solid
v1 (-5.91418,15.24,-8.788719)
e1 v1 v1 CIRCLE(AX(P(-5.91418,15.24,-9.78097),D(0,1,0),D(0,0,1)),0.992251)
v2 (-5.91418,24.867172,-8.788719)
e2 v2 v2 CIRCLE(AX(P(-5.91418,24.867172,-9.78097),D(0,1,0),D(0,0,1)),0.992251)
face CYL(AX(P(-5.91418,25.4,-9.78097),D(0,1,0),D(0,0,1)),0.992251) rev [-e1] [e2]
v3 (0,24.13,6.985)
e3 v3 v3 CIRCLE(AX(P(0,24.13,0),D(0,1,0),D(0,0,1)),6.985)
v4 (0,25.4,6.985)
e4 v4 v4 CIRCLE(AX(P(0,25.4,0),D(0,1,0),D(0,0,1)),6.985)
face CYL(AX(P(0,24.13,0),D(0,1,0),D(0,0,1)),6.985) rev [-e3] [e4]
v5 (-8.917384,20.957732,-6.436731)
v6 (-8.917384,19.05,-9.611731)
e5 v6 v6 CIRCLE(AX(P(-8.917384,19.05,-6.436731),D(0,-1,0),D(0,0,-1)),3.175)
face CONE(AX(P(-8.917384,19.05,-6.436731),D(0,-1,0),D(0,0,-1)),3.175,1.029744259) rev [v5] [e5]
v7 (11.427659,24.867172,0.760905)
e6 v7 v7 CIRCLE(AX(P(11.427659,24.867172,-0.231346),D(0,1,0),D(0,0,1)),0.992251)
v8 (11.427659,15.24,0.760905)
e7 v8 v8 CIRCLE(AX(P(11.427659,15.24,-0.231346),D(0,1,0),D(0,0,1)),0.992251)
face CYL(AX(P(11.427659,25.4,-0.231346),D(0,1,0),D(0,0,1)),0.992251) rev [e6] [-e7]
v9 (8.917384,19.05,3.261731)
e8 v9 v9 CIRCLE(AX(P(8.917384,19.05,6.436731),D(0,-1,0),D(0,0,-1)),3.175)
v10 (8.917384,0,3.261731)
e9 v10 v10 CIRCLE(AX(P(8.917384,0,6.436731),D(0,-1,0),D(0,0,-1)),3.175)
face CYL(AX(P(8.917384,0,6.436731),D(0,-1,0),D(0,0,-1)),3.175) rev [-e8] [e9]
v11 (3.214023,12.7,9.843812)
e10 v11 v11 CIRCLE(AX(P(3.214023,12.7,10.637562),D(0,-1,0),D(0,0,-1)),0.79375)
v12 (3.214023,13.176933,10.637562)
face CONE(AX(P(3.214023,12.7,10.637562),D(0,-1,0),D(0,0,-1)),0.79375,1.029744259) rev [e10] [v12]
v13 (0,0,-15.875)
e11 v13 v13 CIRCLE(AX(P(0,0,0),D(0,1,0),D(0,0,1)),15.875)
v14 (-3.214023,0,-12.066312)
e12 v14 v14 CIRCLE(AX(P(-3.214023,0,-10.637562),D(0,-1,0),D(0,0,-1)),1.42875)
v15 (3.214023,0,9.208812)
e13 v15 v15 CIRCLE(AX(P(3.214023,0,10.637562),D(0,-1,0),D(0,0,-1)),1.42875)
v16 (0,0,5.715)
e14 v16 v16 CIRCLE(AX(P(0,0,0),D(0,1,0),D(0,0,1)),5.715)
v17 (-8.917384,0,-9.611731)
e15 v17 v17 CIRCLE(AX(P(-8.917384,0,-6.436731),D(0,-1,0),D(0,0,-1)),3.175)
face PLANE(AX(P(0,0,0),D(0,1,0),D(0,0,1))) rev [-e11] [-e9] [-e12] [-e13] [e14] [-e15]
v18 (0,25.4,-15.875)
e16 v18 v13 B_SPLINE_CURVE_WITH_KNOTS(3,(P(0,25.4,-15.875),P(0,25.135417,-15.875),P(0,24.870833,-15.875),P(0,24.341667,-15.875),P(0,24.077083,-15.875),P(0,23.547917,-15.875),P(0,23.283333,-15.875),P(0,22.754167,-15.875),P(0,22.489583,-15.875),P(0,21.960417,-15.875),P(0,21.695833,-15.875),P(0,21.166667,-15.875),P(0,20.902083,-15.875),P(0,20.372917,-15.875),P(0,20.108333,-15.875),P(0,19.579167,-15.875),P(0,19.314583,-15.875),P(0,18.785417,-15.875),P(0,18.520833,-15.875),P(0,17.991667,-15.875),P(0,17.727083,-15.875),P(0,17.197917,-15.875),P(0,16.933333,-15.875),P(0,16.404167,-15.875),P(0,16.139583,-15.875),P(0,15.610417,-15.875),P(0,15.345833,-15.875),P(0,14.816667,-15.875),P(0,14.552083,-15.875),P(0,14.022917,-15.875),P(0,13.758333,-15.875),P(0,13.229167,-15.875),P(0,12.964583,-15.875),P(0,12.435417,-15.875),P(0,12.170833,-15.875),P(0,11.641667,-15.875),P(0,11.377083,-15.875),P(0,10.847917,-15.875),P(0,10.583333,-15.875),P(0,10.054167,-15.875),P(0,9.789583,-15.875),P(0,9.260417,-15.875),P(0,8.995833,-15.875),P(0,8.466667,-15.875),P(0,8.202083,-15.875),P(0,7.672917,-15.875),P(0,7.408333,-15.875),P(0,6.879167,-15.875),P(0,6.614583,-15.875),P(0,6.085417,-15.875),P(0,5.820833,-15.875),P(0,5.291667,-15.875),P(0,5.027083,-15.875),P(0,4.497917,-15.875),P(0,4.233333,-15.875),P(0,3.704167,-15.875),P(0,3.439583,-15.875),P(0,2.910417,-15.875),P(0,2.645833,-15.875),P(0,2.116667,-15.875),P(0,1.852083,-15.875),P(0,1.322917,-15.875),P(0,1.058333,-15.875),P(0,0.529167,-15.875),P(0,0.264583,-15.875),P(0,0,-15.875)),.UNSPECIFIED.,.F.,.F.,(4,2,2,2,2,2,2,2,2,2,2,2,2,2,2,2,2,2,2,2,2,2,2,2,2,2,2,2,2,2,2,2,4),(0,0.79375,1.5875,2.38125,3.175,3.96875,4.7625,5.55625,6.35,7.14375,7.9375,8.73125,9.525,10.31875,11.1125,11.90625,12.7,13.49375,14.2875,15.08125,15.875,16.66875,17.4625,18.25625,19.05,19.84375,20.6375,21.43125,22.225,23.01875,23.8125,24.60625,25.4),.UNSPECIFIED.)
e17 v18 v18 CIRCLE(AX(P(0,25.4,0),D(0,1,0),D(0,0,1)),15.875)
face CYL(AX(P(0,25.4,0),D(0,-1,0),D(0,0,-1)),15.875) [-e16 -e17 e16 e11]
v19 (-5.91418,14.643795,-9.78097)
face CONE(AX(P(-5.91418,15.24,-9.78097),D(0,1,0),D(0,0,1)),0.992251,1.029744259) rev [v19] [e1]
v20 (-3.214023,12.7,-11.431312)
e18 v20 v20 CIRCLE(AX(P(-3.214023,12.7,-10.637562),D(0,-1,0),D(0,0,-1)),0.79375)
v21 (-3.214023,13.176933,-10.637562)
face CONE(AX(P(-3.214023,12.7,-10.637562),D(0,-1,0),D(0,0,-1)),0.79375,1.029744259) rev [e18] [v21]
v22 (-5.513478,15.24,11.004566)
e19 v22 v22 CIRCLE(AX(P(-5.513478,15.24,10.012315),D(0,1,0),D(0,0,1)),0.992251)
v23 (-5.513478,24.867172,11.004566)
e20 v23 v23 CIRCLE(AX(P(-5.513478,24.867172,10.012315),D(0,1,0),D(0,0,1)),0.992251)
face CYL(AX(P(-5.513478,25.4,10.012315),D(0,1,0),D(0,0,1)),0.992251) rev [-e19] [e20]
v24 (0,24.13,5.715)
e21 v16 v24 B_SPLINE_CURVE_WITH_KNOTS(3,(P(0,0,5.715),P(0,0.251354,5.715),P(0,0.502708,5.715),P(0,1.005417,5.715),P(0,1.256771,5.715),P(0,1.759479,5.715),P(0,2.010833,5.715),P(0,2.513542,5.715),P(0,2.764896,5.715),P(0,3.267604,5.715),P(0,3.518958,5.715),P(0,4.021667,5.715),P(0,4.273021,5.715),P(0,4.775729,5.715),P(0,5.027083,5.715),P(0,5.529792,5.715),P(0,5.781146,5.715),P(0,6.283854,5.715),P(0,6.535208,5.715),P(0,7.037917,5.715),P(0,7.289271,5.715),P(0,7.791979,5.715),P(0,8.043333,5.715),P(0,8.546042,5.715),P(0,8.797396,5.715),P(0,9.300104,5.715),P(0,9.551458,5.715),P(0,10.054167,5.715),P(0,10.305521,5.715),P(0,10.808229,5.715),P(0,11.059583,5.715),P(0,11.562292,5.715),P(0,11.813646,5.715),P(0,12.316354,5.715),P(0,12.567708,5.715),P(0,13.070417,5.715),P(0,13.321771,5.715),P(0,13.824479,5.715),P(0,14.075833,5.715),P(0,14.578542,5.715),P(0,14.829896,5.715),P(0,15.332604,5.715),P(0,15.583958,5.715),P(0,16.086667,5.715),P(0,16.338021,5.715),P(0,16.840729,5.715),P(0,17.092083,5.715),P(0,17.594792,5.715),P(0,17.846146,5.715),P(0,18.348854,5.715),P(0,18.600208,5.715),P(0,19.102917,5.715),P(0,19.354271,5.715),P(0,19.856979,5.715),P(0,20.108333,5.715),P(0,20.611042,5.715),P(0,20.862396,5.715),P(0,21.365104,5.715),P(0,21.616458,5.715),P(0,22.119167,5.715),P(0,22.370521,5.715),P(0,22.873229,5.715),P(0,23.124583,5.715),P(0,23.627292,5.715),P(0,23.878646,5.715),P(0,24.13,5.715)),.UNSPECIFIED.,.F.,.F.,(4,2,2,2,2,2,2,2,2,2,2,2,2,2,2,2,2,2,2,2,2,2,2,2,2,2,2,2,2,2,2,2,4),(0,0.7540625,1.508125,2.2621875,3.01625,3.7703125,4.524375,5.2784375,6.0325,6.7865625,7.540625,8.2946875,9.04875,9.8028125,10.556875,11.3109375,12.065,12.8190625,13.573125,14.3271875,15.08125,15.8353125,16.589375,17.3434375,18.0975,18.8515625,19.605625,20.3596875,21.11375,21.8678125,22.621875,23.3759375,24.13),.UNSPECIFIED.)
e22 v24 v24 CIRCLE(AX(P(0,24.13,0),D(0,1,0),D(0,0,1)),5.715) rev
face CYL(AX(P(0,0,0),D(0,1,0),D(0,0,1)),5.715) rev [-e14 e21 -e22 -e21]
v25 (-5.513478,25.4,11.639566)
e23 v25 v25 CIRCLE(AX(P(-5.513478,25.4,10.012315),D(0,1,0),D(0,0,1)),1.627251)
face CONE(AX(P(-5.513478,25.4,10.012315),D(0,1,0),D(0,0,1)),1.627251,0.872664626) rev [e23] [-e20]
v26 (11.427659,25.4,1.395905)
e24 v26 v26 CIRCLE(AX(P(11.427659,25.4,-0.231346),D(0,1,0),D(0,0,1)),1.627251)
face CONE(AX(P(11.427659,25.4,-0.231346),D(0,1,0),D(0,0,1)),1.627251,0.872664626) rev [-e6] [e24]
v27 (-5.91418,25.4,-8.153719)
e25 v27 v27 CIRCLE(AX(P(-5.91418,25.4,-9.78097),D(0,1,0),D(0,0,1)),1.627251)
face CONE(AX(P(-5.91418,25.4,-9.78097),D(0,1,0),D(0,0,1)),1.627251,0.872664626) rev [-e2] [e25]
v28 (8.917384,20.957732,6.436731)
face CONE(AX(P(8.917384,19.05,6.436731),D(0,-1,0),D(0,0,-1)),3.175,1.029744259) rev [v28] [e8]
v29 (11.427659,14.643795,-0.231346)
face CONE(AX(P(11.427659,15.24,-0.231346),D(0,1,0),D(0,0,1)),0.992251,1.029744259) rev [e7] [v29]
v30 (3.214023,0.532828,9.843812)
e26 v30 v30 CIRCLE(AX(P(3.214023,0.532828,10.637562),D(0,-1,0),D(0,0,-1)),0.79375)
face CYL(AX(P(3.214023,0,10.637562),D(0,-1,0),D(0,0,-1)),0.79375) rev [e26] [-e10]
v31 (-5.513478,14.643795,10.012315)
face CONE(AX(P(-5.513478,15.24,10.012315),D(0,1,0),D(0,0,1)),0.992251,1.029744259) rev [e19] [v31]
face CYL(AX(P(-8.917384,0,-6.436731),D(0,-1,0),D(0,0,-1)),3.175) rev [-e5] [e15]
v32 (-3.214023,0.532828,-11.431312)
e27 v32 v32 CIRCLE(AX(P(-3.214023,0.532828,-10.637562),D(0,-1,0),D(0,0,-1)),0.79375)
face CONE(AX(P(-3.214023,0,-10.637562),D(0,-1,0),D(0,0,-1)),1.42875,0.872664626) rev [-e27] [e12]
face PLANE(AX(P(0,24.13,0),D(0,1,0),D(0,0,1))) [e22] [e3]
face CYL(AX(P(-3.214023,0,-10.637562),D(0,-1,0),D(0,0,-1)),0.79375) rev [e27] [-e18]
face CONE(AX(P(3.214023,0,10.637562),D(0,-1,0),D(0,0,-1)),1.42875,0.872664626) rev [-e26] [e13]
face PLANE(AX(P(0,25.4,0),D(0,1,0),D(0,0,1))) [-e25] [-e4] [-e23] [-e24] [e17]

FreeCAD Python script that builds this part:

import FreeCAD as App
import Part
import Sketcher
from FreeCAD import Vector
Q = App.Units.Quantity

doc = App.newDocument("Part")
body = doc.addObject("PartDesign::Body", "Body")

# Sketch on XZ plane
sketch1 = doc.addObject("Sketcher::SketchObject", "Sketch")
body.addObject(sketch1)
sketch1.AttachmentSupport = (doc.XZ_Plane, [""])
sketch1.MapMode = "FlatFace"
sketch1.addGeometry(Part.Circle(Vector(0, 0, 0), Vector(0, 0, 1), 16), False)
sketch1.addConstraint([
    Sketcher.Constraint("Coincident", 0, 3, -1, 1),
    Sketcher.Constraint("Diameter", 0, Q("1.25 in")),
])
pad1 = doc.addObject("PartDesign::Pad", "Pad")
body.addObject(pad1)
pad1.Profile = sketch1
pad1.Length = Q("1 in")
pad1.Reversed = True

# Sketch on XZ plane
sketch2 = doc.addObject("Sketcher::SketchObject", "Sketch001")
body.addObject(sketch2)
sketch2.AttachmentSupport = (doc.XZ_Plane, [""])
sketch2.MapMode = "FlatFace"
sketch2.AttachmentOffset = App.Placement(Vector(0, 0, -1 * 25.4), App.Rotation())
sketch2.addGeometry(Part.Circle(Vector(0, 0, 0), Vector(0, 0, 1), 6), False)
sketch2.addConstraint([
    Sketcher.Constraint("Coincident", 0, 3, -1, 1),
    Sketcher.Constraint("Diameter", 0, Q("0.45 in")),
])
pocket1 = doc.addObject("PartDesign::Pocket", "Pocket")
body.addObject(pocket1)
pocket1.Profile = sketch2
pocket1.Type = "ThroughAll"
pocket1.Reversed = True

# Sketch on XZ plane
sketch3 = doc.addObject("Sketcher::SketchObject", "Sketch002")
body.addObject(sketch3)
sketch3.AttachmentSupport = (doc.XZ_Plane, [""])
sketch3.MapMode = "FlatFace"
sketch3.AttachmentOffset = App.Placement(Vector(0, 0, -1 * 25.4), App.Rotation())
sketch3.addGeometry(Part.Circle(Vector(0, 0, 0), Vector(0, 0, 1), 7), False)
sketch3.addConstraint([
    Sketcher.Constraint("Coincident", 0, 3, -1, 1),
    Sketcher.Constraint("Diameter", 0, Q("0.55 in")),
])
pocket2 = doc.addObject("PartDesign::Pocket", "Pocket001")
body.addObject(pocket2)
pocket2.Profile = sketch3
pocket2.Length = Q("0.05 in")
pocket2.Reversed = True

# Sketch on YZ plane
sketch4 = doc.addObject("Sketcher::SketchObject", "Sketch003")
body.addObject(sketch4)
sketch4.AttachmentSupport = (doc.YZ_Plane, [""])
sketch4.MapMode = "FlatFace"
sketch4.AttachmentOffset = App.Placement(Vector(0, 0, 8.917384), App.Rotation())
sketch4.addGeometry([
    Part.LineSegment(Vector(21, 6.4, 0), Vector(0, 6.4, 0)),
    Part.LineSegment(Vector(0, 6.4, 0), Vector(0, 3.3, 0)),
    Part.LineSegment(Vector(0, 3.3, 0), Vector(19.1, 3.3, 0)),
    Part.LineSegment(Vector(19.1, 3.3, 0), Vector(21, 6.4, 0)),
], False)
sketch4.addGeometry(Part.LineSegment(Vector(0, 6.4, 0), Vector(21, 6.4, 0)), True)  # axis
sketch4.addConstraint([
    Sketcher.Constraint("Coincident", 0, 2, 1, 1),
    Sketcher.Constraint("Coincident", 1, 2, 2, 1),
    Sketcher.Constraint("Coincident", 2, 2, 3, 1),
    Sketcher.Constraint("Coincident", 3, 2, 0, 1),
    Sketcher.Constraint("Horizontal", 0),
    Sketcher.Constraint("Vertical", 1),
    Sketcher.Constraint("Horizontal", 2),
    Sketcher.Constraint("Horizontal", 4),
    Sketcher.Constraint("Coincident", 4, 1, 0, 2),
    Sketcher.Constraint("PointOnObject", 0, 2, -2),
    Sketcher.Constraint("Equal", 0, 4),
    Sketcher.Constraint("Angle", 3, Q("59 deg")),
    Sketcher.Constraint("DistanceX", 2, 1, 2, 2, Q("0.75 in")),
    Sketcher.Constraint("DistanceY", 1, 2, 1, 1, Q("0.125 in")),
    Sketcher.Constraint("DistanceY", -1, 1, 0, 2, 6.436731),
])
groove = doc.addObject("PartDesign::Groove", "Groove")
body.addObject(groove)
groove.Profile = sketch4
groove.ReferenceAxis = (sketch4, ["Axis0"])
groove.Angle = 360
doc.recompute()

polarpattern = doc.addObject("PartDesign::PolarPattern", "PolarPattern")
body.addObject(polarpattern)
polarpattern.Originals = [groove]
polarpattern.Axis = (doc.Y_Axis, [""])
polarpattern.Angle = 360
polarpattern.Occurrences = 2
body.Tip = polarpattern

# Sketch on YZ plane
sketch5 = doc.addObject("Sketcher::SketchObject", "Sketch004")
body.addObject(sketch5)
sketch5.AttachmentSupport = (doc.YZ_Plane, [""])
sketch5.MapMode = "FlatFace"
sketch5.AttachmentOffset = App.Placement(Vector(0, 0, -5.91418), App.Rotation())
sketch5.addGeometry([
    Part.LineSegment(Vector(14.6, -9.8, 0), Vector(25.4, -9.8, 0)),  # 0
    Part.LineSegment(Vector(25.4, -9.8, 0), Vector(25.4, -8.2, 0)),  # 1
    Part.LineSegment(Vector(25.4, -8.2, 0), Vector(24.9, -8.8, 0)),  # 2
    Part.LineSegment(Vector(24.9, -8.8, 0), Vector(15.2, -8.8, 0)),  # 3
    Part.LineSegment(Vector(15.2, -8.8, 0), Vector(14.6, -9.8, 0)),  # 4
], False)
sketch5.addGeometry(Part.LineSegment(Vector(25.4, -9.8, 0), Vector(14.6, -9.8, 0)), True)  # axis
sketch5.addConstraint([
    Sketcher.Constraint("Coincident", 0, 2, 1, 1),
    Sketcher.Constraint("Coincident", 1, 2, 2, 1),
    Sketcher.Constraint("Coincident", 2, 2, 3, 1),
    Sketcher.Constraint("Coincident", 3, 2, 4, 1),
    Sketcher.Constraint("Coincident", 4, 2, 0, 1),
    Sketcher.Constraint("Horizontal", 0),
    Sketcher.Constraint("Vertical", 1),
    Sketcher.Constraint("Horizontal", 3),
    Sketcher.Constraint("Horizontal", 5),
    Sketcher.Constraint("Coincident", 5, 1, 0, 2),
    Sketcher.Constraint("Equal", 0, 5),
    Sketcher.Constraint("DistanceX", -1, 1, 0, 2, Q("1 in")),
    Sketcher.Constraint("Angle", 2, Q("-130 deg")),
    Sketcher.Constraint("Angle", 4, Q("-121 deg")),
    Sketcher.Constraint("DistanceX", -1, 1, 3, 2, Q("0.6 in")),
    Sketcher.Constraint("DistanceY", 2, 2, 1, 2, Q("0.025 in")),
    Sketcher.Constraint("DistanceY", 1, 1, 1, 2, 1.627251),
    Sketcher.Constraint("DistanceY", 0, 2, -1, 1, 9.78097),
])
groove2 = doc.addObject("PartDesign::Groove", "Groove001")
body.addObject(groove2)
groove2.Profile = sketch5
groove2.ReferenceAxis = (sketch5, ["Axis0"])
groove2.Angle = 360
doc.recompute()

polarpattern2 = doc.addObject("PartDesign::PolarPattern", "PolarPattern001")
body.addObject(polarpattern2)
polarpattern2.Originals = [groove2]
polarpattern2.Axis = (doc.Y_Axis, [""])
polarpattern2.Angle = 360
polarpattern2.Occurrences = 3
body.Tip = polarpattern2

# Sketch on YZ plane
sketch6 = doc.addObject("Sketcher::SketchObject", "Sketch005")
body.addObject(sketch6)
sketch6.AttachmentSupport = (doc.YZ_Plane, [""])
sketch6.MapMode = "FlatFace"
sketch6.AttachmentOffset = App.Placement(Vector(0, 0, -3.214023), App.Rotation())
sketch6.addGeometry([
    Part.LineSegment(Vector(13.2, -10.6, 0), Vector(0, -10.6, 0)),  # 0
    Part.LineSegment(Vector(0, -10.6, 0), Vector(0, -12.1, 0)),  # 1
    Part.LineSegment(Vector(0, -12.1, 0), Vector(0.5, -11.4, 0)),  # 2
    Part.LineSegment(Vector(0.5, -11.4, 0), Vector(12.7, -11.4, 0)),  # 3
    Part.LineSegment(Vector(12.7, -11.4, 0), Vector(13.2, -10.6, 0)),  # 4
], False)
sketch6.addGeometry(Part.LineSegment(Vector(0, -10.6, 0), Vector(13.2, -10.6, 0)), True)  # axis
sketch6.addConstraint([
    Sketcher.Constraint("Coincident", 0, 2, 1, 1),
    Sketcher.Constraint("Coincident", 1, 2, 2, 1),
    Sketcher.Constraint("Coincident", 2, 2, 3, 1),
    Sketcher.Constraint("Coincident", 3, 2, 4, 1),
    Sketcher.Constraint("Coincident", 4, 2, 0, 1),
    Sketcher.Constraint("Horizontal", 0),
    Sketcher.Constraint("Vertical", 1),
    Sketcher.Constraint("Horizontal", 3),
    Sketcher.Constraint("Horizontal", 5),
    Sketcher.Constraint("Coincident", 5, 1, 0, 2),
    Sketcher.Constraint("PointOnObject", 0, 2, -2),
    Sketcher.Constraint("Equal", 0, 5),
    Sketcher.Constraint("Angle", 2, Q("50 deg")),
    Sketcher.Constraint("Angle", 4, Q("59 deg")),
    Sketcher.Constraint("DistanceX", -1, 1, 3, 2, Q("0.5 in")),
    Sketcher.Constraint("DistanceY", 1, 2, 2, 2, Q("0.025 in")),
    Sketcher.Constraint("DistanceY", 2, 2, 0, 2, Q("0.03125 in")),
    Sketcher.Constraint("DistanceY", 0, 2, -1, 1, 10.637562),
])
groove3 = doc.addObject("PartDesign::Groove", "Groove002")
body.addObject(groove3)
groove3.Profile = sketch6
groove3.ReferenceAxis = (sketch6, ["Axis0"])
groove3.Angle = 360
doc.recompute()

polarpattern3 = doc.addObject("PartDesign::PolarPattern", "PolarPattern002")
body.addObject(polarpattern3)
polarpattern3.Originals = [groove3]
polarpattern3.Axis = (doc.Y_Axis, [""])
polarpattern3.Angle = 360
polarpattern3.Occurrences = 2
body.Tip = polarpattern3

doc.recompute()
